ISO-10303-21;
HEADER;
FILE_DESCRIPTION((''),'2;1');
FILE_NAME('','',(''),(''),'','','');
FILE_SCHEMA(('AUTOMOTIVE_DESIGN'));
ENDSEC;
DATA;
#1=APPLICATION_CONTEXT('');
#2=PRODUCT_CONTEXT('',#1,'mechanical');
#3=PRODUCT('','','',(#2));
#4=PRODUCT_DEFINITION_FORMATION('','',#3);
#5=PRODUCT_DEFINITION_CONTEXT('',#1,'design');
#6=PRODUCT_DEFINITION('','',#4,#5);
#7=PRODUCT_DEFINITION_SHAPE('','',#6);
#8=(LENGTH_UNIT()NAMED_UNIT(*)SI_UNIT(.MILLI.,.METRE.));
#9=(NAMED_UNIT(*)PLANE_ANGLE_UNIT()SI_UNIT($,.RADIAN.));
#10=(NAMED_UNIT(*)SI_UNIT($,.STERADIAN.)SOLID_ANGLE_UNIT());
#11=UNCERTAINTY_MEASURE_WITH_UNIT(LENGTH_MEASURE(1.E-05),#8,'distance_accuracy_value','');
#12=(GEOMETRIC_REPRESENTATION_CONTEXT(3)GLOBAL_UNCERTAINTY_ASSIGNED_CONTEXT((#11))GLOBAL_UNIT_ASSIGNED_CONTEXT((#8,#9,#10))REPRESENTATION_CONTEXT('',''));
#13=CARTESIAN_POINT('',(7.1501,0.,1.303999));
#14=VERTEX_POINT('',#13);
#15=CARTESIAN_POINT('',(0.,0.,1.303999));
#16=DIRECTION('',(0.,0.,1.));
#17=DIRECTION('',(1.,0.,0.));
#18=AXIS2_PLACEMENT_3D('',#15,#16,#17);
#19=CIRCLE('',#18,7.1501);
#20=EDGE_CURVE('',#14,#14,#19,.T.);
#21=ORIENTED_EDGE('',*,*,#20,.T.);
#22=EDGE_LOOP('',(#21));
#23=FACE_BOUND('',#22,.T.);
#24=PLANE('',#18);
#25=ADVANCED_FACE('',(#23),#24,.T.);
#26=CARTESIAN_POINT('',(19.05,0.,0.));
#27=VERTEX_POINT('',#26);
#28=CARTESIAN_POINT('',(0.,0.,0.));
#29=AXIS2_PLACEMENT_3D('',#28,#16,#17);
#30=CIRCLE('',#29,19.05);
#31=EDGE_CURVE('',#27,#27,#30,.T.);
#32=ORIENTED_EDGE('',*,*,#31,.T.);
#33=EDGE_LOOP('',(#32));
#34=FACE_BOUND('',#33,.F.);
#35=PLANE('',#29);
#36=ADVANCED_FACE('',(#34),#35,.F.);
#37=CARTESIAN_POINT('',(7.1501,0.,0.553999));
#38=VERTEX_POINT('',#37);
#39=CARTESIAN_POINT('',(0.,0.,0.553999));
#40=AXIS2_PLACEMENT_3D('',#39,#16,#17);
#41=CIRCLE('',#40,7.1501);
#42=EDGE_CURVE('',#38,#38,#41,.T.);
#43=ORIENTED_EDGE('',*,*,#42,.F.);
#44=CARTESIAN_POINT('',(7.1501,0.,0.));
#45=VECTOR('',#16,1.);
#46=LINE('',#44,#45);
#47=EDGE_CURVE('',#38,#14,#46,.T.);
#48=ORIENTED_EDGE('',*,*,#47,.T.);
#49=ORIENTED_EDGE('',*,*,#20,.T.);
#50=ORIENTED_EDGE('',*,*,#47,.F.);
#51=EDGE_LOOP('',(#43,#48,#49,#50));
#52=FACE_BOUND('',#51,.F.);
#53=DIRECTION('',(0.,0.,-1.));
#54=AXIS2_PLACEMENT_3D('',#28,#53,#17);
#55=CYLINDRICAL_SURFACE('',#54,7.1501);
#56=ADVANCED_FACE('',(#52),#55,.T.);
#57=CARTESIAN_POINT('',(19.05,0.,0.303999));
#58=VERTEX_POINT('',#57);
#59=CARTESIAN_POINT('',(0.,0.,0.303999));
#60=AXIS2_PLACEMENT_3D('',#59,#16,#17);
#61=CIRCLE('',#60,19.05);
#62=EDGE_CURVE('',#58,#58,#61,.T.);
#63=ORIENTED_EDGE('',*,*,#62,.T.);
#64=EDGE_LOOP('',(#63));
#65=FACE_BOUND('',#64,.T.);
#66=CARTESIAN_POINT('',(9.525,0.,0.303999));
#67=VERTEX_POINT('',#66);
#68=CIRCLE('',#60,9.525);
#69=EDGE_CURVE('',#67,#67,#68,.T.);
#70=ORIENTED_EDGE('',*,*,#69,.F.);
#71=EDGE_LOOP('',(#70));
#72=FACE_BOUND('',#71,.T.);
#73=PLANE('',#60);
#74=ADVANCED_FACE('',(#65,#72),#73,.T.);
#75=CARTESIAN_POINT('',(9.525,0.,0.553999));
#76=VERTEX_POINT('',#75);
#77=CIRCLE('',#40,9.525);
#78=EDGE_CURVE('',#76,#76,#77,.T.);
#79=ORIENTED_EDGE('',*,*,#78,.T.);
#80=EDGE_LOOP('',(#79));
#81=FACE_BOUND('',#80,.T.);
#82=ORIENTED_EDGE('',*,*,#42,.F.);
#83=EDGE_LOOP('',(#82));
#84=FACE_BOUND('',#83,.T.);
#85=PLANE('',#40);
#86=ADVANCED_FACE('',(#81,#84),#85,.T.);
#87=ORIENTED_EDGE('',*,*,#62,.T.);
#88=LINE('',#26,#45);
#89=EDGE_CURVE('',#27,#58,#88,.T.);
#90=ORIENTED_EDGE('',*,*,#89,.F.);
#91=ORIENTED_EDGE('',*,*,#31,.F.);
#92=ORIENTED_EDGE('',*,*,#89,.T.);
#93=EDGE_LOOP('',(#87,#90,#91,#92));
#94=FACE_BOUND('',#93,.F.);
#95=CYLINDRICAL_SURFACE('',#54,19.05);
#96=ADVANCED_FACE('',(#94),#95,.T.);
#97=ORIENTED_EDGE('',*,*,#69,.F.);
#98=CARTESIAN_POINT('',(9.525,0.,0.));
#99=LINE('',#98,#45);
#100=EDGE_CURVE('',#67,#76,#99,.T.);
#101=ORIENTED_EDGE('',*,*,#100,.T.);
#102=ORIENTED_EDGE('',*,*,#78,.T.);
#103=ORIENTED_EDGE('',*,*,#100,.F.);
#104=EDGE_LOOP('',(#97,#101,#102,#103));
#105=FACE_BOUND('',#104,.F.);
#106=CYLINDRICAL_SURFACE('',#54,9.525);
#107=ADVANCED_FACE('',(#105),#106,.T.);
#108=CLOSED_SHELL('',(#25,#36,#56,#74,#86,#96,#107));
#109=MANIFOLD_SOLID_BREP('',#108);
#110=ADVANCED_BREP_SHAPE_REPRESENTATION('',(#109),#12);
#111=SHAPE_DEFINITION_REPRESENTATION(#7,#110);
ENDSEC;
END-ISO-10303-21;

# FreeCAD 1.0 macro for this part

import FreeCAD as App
import Part
import Sketcher

V = App.Vector
Q = App.Units.Quantity

doc = App.newDocument("Part")
params = doc.addObject("Spreadsheet::Sheet", "Params")
for row, (alias, value) in enumerate([
    ("sketch1_diameter", "1.5 in"),
    ("sketch1_diameter2", "0.75 in"),
    ("pad1_length", "0.303999 mm"),
    ("sketch2_diameter", "0.75 in"),
    ("sketch2_diameter2", "0.563 in"),
    ("pad2_length", "0.553999 mm"),
    ("sketch3_diameter", "0.563 in"),
    ("pad3_length", "1.303999 mm"),
], start=1):
    params.set(f"A{row}", alias)
    params.set(f"B{row}", "=" + value)
    params.setAlias(f"B{row}", alias)

body = doc.addObject("PartDesign::Body", "Body")

sketch1 = doc.addObject("Sketcher::SketchObject", "Sketch")
body.addObject(sketch1)
sketch1.AttachmentSupport = (doc.XY_Plane, [""])
sketch1.MapMode = "FlatFace"
sketch1.addGeometry(Part.Circle(V(0, 0, 0), V(0, 0, 1), 19), False)
sketch1.addGeometry(Part.Circle(V(0, 0, 0), V(0, 0, 1), 10), False)
sketch1.addConstraint(Sketcher.Constraint("Coincident", 0, 3, -1, 1))
sketch1.addConstraint(Sketcher.Constraint("Coincident", 1, 3, -1, 1))
sketch1.addConstraint(Sketcher.Constraint("Diameter", 0, Q("1.5 in")))
sketch1.addConstraint(Sketcher.Constraint("Diameter", 1, Q("0.75 in")))
sketch1.setExpression("Constraints[2]", "Params.sketch1_diameter")
sketch1.setExpression("Constraints[3]", "Params.sketch1_diameter2")
pad1 = doc.addObject("PartDesign::Pad", "Pad")
body.addObject(pad1)
pad1.Profile = sketch1
pad1.setExpression("Length", "Params.pad1_length")

sketch2 = doc.addObject("Sketcher::SketchObject", "Sketch001")
body.addObject(sketch2)
sketch2.AttachmentSupport = (doc.XY_Plane, [""])
sketch2.MapMode = "FlatFace"
sketch2.addGeometry(Part.Circle(V(0, 0, 0), V(0, 0, 1), 10), False)
sketch2.addGeometry(Part.Circle(V(0, 0, 0), V(0, 0, 1), 7), False)
sketch2.addConstraint(Sketcher.Constraint("Coincident", 0, 3, -1, 1))
sketch2.addConstraint(Sketcher.Constraint("Coincident", 1, 3, -1, 1))
sketch2.addConstraint(Sketcher.Constraint("Diameter", 0, Q("0.75 in")))
sketch2.addConstraint(Sketcher.Constraint("Diameter", 1, Q("0.563 in")))
sketch2.setExpression("Constraints[2]", "Params.sketch2_diameter")
sketch2.setExpression("Constraints[3]", "Params.sketch2_diameter2")
pad2 = doc.addObject("PartDesign::Pad", "Pad001")
body.addObject(pad2)
pad2.Profile = sketch2
pad2.setExpression("Length", "Params.pad2_length")

sketch3 = doc.addObject("Sketcher::SketchObject", "Sketch002")
body.addObject(sketch3)
sketch3.AttachmentSupport = (doc.XY_Plane, [""])
sketch3.MapMode = "FlatFace"
sketch3.addGeometry(Part.Circle(V(0, 0, 0), V(0, 0, 1), 7), False)
sketch3.addConstraint(Sketcher.Constraint("Coincident", 0, 3, -1, 1))
sketch3.addConstraint(Sketcher.Constraint("Diameter", 0, Q("0.563 in")))
sketch3.setExpression("Constraints[1]", "Params.sketch3_diameter")
pad3 = doc.addObject("PartDesign::Pad", "Pad002")
body.addObject(pad3)
pad3.Profile = sketch3
pad3.setExpression("Length", "Params.pad3_length")

doc.recompute()
